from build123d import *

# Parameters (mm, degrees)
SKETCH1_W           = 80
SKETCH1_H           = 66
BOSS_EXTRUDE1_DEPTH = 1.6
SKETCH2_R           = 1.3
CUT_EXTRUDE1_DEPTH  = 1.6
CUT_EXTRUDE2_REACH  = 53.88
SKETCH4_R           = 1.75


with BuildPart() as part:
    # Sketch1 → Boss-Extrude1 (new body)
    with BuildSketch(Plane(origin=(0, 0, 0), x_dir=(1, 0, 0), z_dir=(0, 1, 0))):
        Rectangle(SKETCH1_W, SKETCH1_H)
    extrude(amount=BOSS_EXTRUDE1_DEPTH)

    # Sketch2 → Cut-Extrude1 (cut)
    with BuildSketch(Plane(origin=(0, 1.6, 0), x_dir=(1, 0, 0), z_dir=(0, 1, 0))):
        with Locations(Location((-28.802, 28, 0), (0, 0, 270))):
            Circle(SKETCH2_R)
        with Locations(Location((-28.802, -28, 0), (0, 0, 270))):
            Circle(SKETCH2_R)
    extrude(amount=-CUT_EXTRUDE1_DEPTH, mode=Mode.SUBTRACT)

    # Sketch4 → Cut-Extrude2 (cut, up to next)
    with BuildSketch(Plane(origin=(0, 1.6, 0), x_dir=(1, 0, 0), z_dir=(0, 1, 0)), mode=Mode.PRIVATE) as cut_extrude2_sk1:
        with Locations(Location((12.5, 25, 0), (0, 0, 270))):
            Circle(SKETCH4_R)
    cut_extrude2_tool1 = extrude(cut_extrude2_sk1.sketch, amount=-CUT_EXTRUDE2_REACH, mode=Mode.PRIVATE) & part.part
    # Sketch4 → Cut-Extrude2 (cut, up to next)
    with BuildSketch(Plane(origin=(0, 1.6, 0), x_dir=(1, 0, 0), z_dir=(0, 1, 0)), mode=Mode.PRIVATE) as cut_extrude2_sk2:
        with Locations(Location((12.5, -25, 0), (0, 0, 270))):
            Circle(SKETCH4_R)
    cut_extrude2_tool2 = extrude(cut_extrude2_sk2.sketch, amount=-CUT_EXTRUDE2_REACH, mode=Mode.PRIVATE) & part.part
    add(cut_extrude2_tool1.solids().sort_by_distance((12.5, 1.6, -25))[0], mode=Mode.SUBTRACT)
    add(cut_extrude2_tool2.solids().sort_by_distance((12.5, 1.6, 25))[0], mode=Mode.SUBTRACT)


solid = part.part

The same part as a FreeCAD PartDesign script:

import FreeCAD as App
import Part
import Sketcher
Q = App.Units.Quantity


def add_polygon(sketch, points):
    """Adds a closed chain of lines whose ends are joined by coincident constraints."""
    first, n = sketch.GeometryCount, len(points)
    for a, b in zip(points, points[1:] + points[:1]):
        sketch.addGeometry(Part.LineSegment(App.Vector(*a, 0), App.Vector(*b, 0)), False)
    for i in range(n):
        sketch.addConstraint(Sketcher.Constraint("Coincident", first + i, 2, first + (i + 1) % n, 1))

doc = App.newDocument("Part")
body = doc.addObject("PartDesign::Body", "Body")

# Sketch on XZ plane
sketch1 = body.newObject("Sketcher::SketchObject", "Sketch")
sketch1.AttachmentSupport = (doc.getObject("XZ_Plane"), [""])
sketch1.MapMode = "FlatFace"
add_polygon(sketch1, [(-40, -33), (-40, 33), (40, 33), (40, -33)])  # lines 0-3
sketch1.addConstraint(Sketcher.Constraint("Vertical", 0))
sketch1.addConstraint(Sketcher.Constraint("Horizontal", 1))
sketch1.addConstraint(Sketcher.Constraint("Vertical", 2))
sketch1.addConstraint(Sketcher.Constraint("Horizontal", 3))
sketch1.addConstraint(Sketcher.Constraint("Symmetric", 0, 2, 2, 2, -1, 1))
sketch1.addConstraint(Sketcher.Constraint("DistanceX", 1, 1, 1, 2, Q("80 mm")))
sketch1.addConstraint(Sketcher.Constraint("DistanceY", 0, 1, 0, 2, Q("66 mm")))
pad1 = body.newObject("PartDesign::Pad", "Pad")
pad1.Profile = sketch1
pad1.Length = 1.6
pad1.Reversed = True

# Sketch on XZ plane
sketch2 = body.newObject("Sketcher::SketchObject", "Sketch001")
sketch2.AttachmentSupport = (doc.getObject("XZ_Plane"), [""])
sketch2.MapMode = "FlatFace"
sketch2.AttachmentOffset = App.Placement(App.Vector(0, 0, -1.6), App.Rotation())
sketch2.addGeometry(Part.Circle(App.Vector(-28.8, -28, 0), App.Vector(0, 0, 1), 1.3), False)
sketch2.addGeometry(Part.Circle(App.Vector(-28.8, 28, 0), App.Vector(0, 0, 1), 1.3), False)
sketch2.addConstraint(Sketcher.Constraint("Equal", 0, 1))
sketch2.addConstraint(Sketcher.Constraint("Symmetric", 0, 3, 1, 3, -1))
sketch2.addConstraint(Sketcher.Constraint("Diameter", 0, Q("2.6 mm")))
sketch2.addConstraint(Sketcher.Constraint("DistanceY", 0, 3, -1, 1, Q("28 mm")))
sketch2.addConstraint(Sketcher.Constraint("DistanceX", 0, 3, -1, 1, Q("28.802 mm")))
pocket1 = body.newObject("PartDesign::Pocket", "Pocket")
pocket1.Profile = sketch2
pocket1.Length = 1.6
pocket1.Reversed = True

# Sketch on XZ plane
sketch3 = body.newObject("Sketcher::SketchObject", "Sketch002")
sketch3.AttachmentSupport = (doc.getObject("XZ_Plane"), [""])
sketch3.MapMode = "FlatFace"
sketch3.AttachmentOffset = App.Placement(App.Vector(0, 0, -1.6), App.Rotation())
sketch3.addGeometry(Part.Circle(App.Vector(12.5, -25, 0), App.Vector(0, 0, 1), 1.8), False)
sketch3.addConstraint(Sketcher.Constraint("Diameter", 0, Q("3.5 mm")))
sketch3.addConstraint(Sketcher.Constraint("DistanceY", 0, 3, -1, 1, Q("25 mm")))
sketch3.addConstraint(Sketcher.Constraint("DistanceX", -1, 1, 0, 3, Q("12.5 mm")))
pocket2 = body.newObject("PartDesign::Pocket", "Pocket001")
pocket2.Profile = sketch3
pocket2.Type = "UpToFirst"
pocket2.Reversed = True

# Sketch on XZ plane
sketch4 = body.newObject("Sketcher::SketchObject", "Sketch003")
sketch4.AttachmentSupport = (doc.getObject("XZ_Plane"), [""])
sketch4.MapMode = "FlatFace"
sketch4.AttachmentOffset = App.Placement(App.Vector(0, 0, -1.6), App.Rotation())
sketch4.addGeometry(Part.Circle(App.Vector(12.5, 25, 0), App.Vector(0, 0, 1), 1.8), False)
sketch4.addConstraint(Sketcher.Constraint("Diameter", 0, Q("3.5 mm")))
sketch4.addConstraint(Sketcher.Constraint("DistanceY", -1, 1, 0, 3, Q("25 mm")))
sketch4.addConstraint(Sketcher.Constraint("DistanceX", -1, 1, 0, 3, Q("12.5 mm")))
pocket3 = body.newObject("PartDesign::Pocket", "Pocket002")
pocket3.Profile = sketch4
pocket3.Type = "UpToFirst"
pocket3.Reversed = True

doc.recompute()
